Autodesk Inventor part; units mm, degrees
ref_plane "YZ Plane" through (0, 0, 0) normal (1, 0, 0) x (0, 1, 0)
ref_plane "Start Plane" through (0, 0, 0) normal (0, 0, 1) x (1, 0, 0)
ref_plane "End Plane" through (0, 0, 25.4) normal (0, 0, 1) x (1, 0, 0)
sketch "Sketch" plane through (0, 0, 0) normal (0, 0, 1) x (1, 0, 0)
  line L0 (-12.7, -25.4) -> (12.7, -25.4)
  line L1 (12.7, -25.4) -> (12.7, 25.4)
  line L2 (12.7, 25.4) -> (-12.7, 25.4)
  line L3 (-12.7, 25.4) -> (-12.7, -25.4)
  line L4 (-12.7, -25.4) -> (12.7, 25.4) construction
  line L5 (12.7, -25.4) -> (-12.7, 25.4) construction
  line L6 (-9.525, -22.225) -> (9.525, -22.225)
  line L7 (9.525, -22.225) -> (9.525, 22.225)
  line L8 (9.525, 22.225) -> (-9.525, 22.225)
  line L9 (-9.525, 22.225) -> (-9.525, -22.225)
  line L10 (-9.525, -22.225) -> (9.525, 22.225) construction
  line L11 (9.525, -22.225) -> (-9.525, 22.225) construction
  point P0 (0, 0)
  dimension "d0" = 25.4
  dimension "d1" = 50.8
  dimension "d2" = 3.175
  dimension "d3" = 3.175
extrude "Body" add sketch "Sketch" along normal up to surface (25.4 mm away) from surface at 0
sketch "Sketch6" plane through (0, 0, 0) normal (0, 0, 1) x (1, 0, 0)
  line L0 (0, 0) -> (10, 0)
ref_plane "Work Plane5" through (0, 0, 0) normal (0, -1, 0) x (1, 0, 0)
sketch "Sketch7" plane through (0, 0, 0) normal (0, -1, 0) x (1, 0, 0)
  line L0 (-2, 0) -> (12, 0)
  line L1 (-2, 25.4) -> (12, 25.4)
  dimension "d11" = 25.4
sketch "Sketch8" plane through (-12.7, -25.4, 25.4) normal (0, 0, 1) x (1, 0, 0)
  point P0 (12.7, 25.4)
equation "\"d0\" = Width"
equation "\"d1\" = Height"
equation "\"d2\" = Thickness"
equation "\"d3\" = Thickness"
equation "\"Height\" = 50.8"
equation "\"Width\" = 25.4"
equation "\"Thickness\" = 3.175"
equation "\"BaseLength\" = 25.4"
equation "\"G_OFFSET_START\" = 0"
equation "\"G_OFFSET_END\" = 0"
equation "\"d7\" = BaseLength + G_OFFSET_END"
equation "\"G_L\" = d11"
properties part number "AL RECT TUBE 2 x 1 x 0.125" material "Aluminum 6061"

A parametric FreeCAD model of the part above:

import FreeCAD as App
import Part
import Sketcher

V = App.Vector
Q = App.Units.Quantity

doc = App.newDocument("Part")
body = doc.addObject("PartDesign::Body", "Body")

sketch1 = doc.addObject("Sketcher::SketchObject", "Sketch")
body.addObject(sketch1)
sketch1.AttachmentSupport = (doc.XY_Plane, [""])
sketch1.MapMode = "FlatFace"
sketch1.addGeometry([
    Part.LineSegment(V(-12.7, 25.4, 0), V(-12.7, -25.4, 0)),
    Part.LineSegment(V(-12.7, -25.4, 0), V(12.7, -25.4, 0)),
    Part.LineSegment(V(12.7, -25.4, 0), V(12.7, 25.4, 0)),
    Part.LineSegment(V(12.7, 25.4, 0), V(-12.7, 25.4, 0)),
    Part.LineSegment(V(9.525, -22.225, 0), V(-9.525, -22.225, 0)),
    Part.LineSegment(V(-9.525, -22.225, 0), V(-9.525, 22.225, 0)),
    Part.LineSegment(V(-9.525, 22.225, 0), V(9.525, 22.225, 0)),
    Part.LineSegment(V(9.525, 22.225, 0), V(9.525, -22.225, 0)),
], False)
sketch1.addConstraint([
    Sketcher.Constraint("Coincident", 0, 2, 1, 1),
    Sketcher.Constraint("Coincident", 1, 2, 2, 1),
    Sketcher.Constraint("Coincident", 2, 2, 3, 1),
    Sketcher.Constraint("Coincident", 3, 2, 0, 1),
    Sketcher.Constraint("Coincident", 4, 2, 5, 1),
    Sketcher.Constraint("Coincident", 5, 2, 6, 1),
    Sketcher.Constraint("Coincident", 6, 2, 7, 1),
    Sketcher.Constraint("Coincident", 7, 2, 4, 1),
    Sketcher.Constraint("Vertical", 0),
    Sketcher.Constraint("Horizontal", 1),
    Sketcher.Constraint("Vertical", 2),
    Sketcher.Constraint("Horizontal", 3),
    Sketcher.Constraint("Horizontal", 4),
    Sketcher.Constraint("Vertical", 5),
    Sketcher.Constraint("Horizontal", 6),
    Sketcher.Constraint("Vertical", 7),
    Sketcher.Constraint("Symmetric", 0, 2, 2, 2, -1, 1),
    Sketcher.Constraint("Symmetric", 4, 2, 6, 2, -1, 1),
    Sketcher.Constraint("DistanceX", 1, 1, 1, 2, Q("1 in")),
    Sketcher.Constraint("DistanceY", 0, 2, 0, 1, Q("2 in")),
    Sketcher.Constraint("DistanceX", 0, 2, 4, 2, Q("0.125 in")),
    Sketcher.Constraint("DistanceY", 0, 2, 4, 2, Q("0.125 in")),
])
pad1 = doc.addObject("PartDesign::Pad", "Pad")
body.addObject(pad1)
pad1.Profile = sketch1
pad1.Length = Q("1 in")

doc.recompute()
